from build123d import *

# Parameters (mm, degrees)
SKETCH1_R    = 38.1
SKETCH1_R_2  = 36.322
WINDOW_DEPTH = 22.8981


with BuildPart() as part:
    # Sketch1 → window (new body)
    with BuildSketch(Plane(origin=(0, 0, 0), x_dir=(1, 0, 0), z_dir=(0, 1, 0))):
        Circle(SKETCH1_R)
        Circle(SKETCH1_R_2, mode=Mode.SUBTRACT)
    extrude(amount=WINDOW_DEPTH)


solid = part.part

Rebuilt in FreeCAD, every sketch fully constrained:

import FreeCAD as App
import Part
import Sketcher
from FreeCAD import Vector
Q = App.Units.Quantity

doc = App.newDocument("Part")
body = doc.addObject("PartDesign::Body", "Body")

# Sketch on XZ plane
sketch1 = body.newObject("Sketcher::SketchObject", "Sketch")
sketch1.AttachmentSupport = (doc.getObject("XZ_Plane"), [""])
sketch1.MapMode = "FlatFace"
sketch1.addGeometry(Part.Circle(Vector(0, 0, 0), Vector(0, 0, 1), 38.1), False)
sketch1.addGeometry(Part.Circle(Vector(0, 0, 0), Vector(0, 0, 1), 36.322), False)
sketch1.addConstraint(Sketcher.Constraint("Coincident", 0, 3, -1, 1))
sketch1.addConstraint(Sketcher.Constraint("Coincident", 1, 3, -1, 1))
sketch1.addConstraint(Sketcher.Constraint("Diameter", 0, Q("3 in")))
sketch1.addConstraint(Sketcher.Constraint("Diameter", 1, Q("2.86 in")))
pad1 = body.newObject("PartDesign::Pad", "Pad")
pad1.Profile = sketch1
pad1.Length = Q("0.9015 in")
pad1.Reversed = True

doc.recompute()
